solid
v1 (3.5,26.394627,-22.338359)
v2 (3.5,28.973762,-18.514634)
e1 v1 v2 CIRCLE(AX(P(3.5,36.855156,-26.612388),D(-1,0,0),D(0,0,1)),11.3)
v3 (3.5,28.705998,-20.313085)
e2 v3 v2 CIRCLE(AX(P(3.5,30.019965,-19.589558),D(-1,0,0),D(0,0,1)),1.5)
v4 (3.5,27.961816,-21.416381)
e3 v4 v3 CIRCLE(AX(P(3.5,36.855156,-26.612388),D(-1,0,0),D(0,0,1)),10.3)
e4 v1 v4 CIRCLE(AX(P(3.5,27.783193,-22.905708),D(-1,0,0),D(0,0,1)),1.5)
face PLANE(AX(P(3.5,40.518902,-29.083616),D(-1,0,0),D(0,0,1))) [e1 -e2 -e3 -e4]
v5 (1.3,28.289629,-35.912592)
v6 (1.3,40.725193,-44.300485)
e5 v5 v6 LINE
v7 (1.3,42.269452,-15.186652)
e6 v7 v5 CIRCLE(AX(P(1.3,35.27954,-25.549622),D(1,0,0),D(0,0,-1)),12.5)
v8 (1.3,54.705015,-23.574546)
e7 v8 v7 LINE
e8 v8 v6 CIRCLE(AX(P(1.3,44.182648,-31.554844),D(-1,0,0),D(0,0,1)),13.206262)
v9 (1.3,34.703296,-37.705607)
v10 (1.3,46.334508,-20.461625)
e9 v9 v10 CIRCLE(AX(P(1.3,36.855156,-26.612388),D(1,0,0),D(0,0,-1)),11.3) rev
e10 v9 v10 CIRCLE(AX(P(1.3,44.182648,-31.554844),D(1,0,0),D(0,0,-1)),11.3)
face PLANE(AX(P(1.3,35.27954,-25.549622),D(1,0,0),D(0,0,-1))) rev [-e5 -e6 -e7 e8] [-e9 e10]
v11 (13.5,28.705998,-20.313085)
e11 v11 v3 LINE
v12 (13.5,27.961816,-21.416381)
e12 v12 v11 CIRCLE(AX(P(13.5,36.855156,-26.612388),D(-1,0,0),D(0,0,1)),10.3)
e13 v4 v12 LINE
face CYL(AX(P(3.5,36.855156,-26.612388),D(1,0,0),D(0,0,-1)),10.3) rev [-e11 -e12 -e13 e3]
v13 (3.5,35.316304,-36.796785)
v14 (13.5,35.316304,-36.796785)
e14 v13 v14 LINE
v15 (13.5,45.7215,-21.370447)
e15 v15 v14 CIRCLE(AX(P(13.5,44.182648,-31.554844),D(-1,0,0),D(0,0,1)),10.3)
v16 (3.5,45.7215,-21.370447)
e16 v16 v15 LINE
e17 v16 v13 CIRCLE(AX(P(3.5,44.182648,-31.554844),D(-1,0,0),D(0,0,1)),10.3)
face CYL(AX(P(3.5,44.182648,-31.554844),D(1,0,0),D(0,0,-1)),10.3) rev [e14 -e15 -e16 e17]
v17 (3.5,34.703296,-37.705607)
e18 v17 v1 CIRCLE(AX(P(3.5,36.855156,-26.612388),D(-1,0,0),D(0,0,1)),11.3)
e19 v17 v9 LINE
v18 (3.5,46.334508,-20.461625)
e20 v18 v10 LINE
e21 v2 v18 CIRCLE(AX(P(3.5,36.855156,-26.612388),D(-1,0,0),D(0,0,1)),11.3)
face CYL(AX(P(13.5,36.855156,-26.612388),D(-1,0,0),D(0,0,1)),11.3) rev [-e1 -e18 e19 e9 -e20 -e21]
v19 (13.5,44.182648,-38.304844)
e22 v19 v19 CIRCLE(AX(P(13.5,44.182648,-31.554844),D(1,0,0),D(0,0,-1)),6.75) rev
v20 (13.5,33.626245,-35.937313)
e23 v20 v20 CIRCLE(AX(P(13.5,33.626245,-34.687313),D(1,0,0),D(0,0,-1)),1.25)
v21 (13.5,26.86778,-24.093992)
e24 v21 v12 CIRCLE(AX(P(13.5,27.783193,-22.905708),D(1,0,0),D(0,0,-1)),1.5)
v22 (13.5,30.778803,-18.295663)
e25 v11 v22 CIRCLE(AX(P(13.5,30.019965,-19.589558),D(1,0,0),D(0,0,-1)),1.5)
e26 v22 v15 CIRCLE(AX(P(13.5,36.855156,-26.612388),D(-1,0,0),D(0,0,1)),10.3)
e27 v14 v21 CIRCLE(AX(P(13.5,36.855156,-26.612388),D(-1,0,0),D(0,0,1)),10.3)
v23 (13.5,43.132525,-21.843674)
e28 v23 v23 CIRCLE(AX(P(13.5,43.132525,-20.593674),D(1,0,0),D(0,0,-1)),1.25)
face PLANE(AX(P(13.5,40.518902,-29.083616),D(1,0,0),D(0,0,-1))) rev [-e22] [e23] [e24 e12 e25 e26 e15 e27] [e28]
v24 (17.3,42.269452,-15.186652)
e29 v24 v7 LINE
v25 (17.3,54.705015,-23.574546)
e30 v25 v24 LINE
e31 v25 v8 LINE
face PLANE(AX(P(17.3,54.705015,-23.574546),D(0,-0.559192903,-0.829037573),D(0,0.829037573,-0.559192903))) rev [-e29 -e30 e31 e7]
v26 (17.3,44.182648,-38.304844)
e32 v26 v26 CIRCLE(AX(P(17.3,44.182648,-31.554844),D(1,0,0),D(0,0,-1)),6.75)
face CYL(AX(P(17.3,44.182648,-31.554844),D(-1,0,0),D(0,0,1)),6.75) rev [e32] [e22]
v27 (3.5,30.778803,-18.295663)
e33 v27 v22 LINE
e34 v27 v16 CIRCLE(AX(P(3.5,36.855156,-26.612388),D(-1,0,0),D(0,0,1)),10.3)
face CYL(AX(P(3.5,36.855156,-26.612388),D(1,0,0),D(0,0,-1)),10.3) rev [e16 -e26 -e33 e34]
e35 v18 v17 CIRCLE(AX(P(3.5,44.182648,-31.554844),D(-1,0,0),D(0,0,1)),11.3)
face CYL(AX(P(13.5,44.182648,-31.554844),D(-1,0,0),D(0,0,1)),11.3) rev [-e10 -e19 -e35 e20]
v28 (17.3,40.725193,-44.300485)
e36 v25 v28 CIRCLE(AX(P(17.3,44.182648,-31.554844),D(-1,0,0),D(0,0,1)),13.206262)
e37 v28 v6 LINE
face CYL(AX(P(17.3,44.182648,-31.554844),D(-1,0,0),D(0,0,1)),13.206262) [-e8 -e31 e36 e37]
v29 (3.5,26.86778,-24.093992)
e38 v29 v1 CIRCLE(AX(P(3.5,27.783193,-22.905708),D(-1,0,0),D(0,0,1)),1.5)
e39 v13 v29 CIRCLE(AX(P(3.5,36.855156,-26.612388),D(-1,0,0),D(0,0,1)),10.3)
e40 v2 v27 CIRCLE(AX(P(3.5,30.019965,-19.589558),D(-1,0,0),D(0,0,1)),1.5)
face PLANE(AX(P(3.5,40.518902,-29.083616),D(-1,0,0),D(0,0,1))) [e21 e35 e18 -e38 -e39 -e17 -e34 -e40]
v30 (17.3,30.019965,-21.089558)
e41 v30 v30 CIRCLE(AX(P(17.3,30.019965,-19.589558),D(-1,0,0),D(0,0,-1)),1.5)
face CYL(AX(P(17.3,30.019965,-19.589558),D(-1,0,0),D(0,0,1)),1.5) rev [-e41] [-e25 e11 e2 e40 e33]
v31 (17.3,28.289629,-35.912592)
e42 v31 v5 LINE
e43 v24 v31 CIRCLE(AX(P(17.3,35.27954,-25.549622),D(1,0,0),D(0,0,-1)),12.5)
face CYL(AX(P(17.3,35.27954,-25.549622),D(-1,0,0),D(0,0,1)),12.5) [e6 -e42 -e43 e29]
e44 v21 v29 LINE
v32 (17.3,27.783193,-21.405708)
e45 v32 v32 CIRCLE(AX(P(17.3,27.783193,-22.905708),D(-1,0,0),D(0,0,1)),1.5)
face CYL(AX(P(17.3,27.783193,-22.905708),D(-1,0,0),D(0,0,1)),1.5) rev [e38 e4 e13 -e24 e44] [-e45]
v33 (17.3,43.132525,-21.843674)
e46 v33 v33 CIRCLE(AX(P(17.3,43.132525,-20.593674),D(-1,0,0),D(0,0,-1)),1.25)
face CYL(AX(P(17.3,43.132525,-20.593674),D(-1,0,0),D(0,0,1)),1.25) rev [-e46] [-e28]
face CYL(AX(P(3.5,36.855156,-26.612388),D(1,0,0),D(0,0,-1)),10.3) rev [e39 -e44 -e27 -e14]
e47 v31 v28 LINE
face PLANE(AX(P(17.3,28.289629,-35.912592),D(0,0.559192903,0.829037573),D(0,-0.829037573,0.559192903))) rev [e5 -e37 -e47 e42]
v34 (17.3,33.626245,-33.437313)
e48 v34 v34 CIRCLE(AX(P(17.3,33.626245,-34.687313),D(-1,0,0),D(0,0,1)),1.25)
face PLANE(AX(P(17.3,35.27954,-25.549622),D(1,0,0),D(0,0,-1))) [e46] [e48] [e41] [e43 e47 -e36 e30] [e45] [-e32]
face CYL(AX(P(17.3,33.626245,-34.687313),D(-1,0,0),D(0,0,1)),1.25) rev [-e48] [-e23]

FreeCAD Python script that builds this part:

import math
import FreeCAD as App
import Part
import Sketcher

V = App.Vector
Q = App.Units.Quantity

doc = App.newDocument("Part")
body = doc.addObject("PartDesign::Body", "Body")

# Sketch on YZ plane
sketch1 = body.newObject("Sketcher::SketchObject", "Sketch")
sketch1.AttachmentSupport = (doc.getObject("YZ_Plane"), [""])
sketch1.MapMode = "FlatFace"
sketch1.AttachmentOffset = App.Placement(V(0, 0, 1.3), App.Rotation())
sketch1.addGeometry(Part.LineSegment(V(55, -24, 0), V(42, -15, 0)), False)
sketch1.addGeometry(Part.ArcOfCircle(Part.Circle(V(35, -26, 0), V(0, 0, 1), 12), math.radians(56), math.radians(236)), False)
sketch1.addGeometry(Part.LineSegment(V(28, -36, 0), V(41, -44, 0)), False)
sketch1.addGeometry(Part.ArcOfCircle(Part.Circle(V(44, -32, 0), V(0, 0, 1), 13), math.radians(-105), math.radians(37)), False)
sketch1.addConstraint(Sketcher.Constraint("Tangent", 0, 2, 1, 1))
sketch1.addConstraint(Sketcher.Constraint("Tangent", 1, 2, 2, 1))
sketch1.addConstraint(Sketcher.Constraint("Coincident", 2, 2, 3, 1))
sketch1.addConstraint(Sketcher.Constraint("Coincident", 3, 2, 0, 1))
sketch1.addConstraint(Sketcher.Constraint("Parallel", 0, 2))
sketch1.addConstraint(Sketcher.Constraint("Equal", 0, 2))
sketch1.addConstraint(Sketcher.Constraint("Radius", 1, 12.5))
sketch1.addConstraint(Sketcher.Constraint("Angle", 0, Q("146 deg")))
sketch1.addConstraint(Sketcher.Constraint("Distance", 0, 15.0))
sketch1.addConstraint(Sketcher.Constraint("Radius", 3, 13.206262))
sketch1.addConstraint(Sketcher.Constraint("DistanceX", -1, 1, 1, 3, 35.27954))
sketch1.addConstraint(Sketcher.Constraint("DistanceY", 1, 3, -1, 1, 25.549622))
pad1 = body.newObject("PartDesign::Pad", "Pad")
pad1.Profile = sketch1
pad1.Length = 16

# Sketch on YZ plane
sketch2 = body.newObject("Sketcher::SketchObject", "Sketch001")
sketch2.AttachmentSupport = (doc.getObject("YZ_Plane"), [""])
sketch2.MapMode = "FlatFace"
sketch2.addGeometry(Part.ArcOfCircle(Part.Circle(V(44, -32, 0), V(0, 0, 1), 11), math.radians(-147), math.radians(79)), False)
sketch2.addGeometry(Part.ArcOfCircle(Part.Circle(V(37, -27, 0), V(0, 0, 1), 11), math.radians(33), math.radians(259)), False)
sketch2.addConstraint(Sketcher.Constraint("Coincident", 0, 1, 1, 2))
sketch2.addConstraint(Sketcher.Constraint("Coincident", 1, 1, 0, 2))
sketch2.addConstraint(Sketcher.Constraint("Equal", 0, 1))
sketch2.addConstraint(Sketcher.Constraint("Radius", 0, 11.3))
sketch2.addConstraint(Sketcher.Constraint("DistanceX", -1, 1, 0, 3, 44.182648))
sketch2.addConstraint(Sketcher.Constraint("DistanceY", 1, 3, -1, 1, 26.612388))
sketch2.addConstraint(Sketcher.Constraint("DistanceX", -1, 1, 1, 1, 46.334508))
sketch2.addConstraint(Sketcher.Constraint("DistanceX", 1, 3, 0, 3, 7.327492))
pocket1 = body.newObject("PartDesign::Pocket", "Pocket")
pocket1.Profile = sketch2
pocket1.Length = 13.5
pocket1.Reversed = True

# Sketch on YZ plane
sketch3 = body.newObject("Sketcher::SketchObject", "Sketch002")
sketch3.AttachmentSupport = (doc.getObject("YZ_Plane"), [""])
sketch3.MapMode = "FlatFace"
sketch3.addGeometry(Part.Circle(V(44, -32, 0), V(0, 0, 1), 7), False)
sketch3.addConstraint(Sketcher.Constraint("Diameter", 0, 13.5))
sketch3.addConstraint(Sketcher.Constraint("DistanceX", -1, 1, 0, 3, 44.182648))
sketch3.addConstraint(Sketcher.Constraint("DistanceY", 0, 3, -1, 1, 31.554844))
pocket2 = body.newObject("PartDesign::Pocket", "Pocket001")
pocket2.Profile = sketch3
pocket2.Type = "ThroughAll"
pocket2.Reversed = True

# Sketch on YZ plane
sketch4 = body.newObject("Sketcher::SketchObject", "Sketch003")
sketch4.AttachmentSupport = (doc.getObject("YZ_Plane"), [""])
sketch4.MapMode = "FlatFace"
sketch4.AttachmentOffset = App.Placement(V(0, 0, 13.5), App.Rotation())
sketch4.addGeometry(Part.ArcOfCircle(Part.Circle(V(44, -32, 0), V(0, 0, 1), 11), math.radians(-147), math.radians(79)), False)
sketch4.addGeometry(Part.ArcOfCircle(Part.Circle(V(37, -27, 0), V(0, 0, 1), 11), math.radians(33), math.radians(259)), False)
sketch4.addGeometry(Part.ArcOfCircle(Part.Circle(V(37, -27, 0), V(0, 0, 1), 10), math.radians(31), math.radians(261)), False)
sketch4.addGeometry(Part.ArcOfCircle(Part.Circle(V(44, -32, 0), V(0, 0, 1), 10), math.radians(-149), math.radians(81)), False)
sketch4.addConstraint(Sketcher.Constraint("Coincident", 0, 1, 1, 2))
sketch4.addConstraint(Sketcher.Constraint("Coincident", 1, 1, 0, 2))
sketch4.addConstraint(Sketcher.Constraint("Coincident", 2, 1, 3, 2))
sketch4.addConstraint(Sketcher.Constraint("Coincident", 3, 1, 2, 2))
sketch4.addConstraint(Sketcher.Constraint("Coincident", 2, 3, 1, 3))
sketch4.addConstraint(Sketcher.Constraint("Coincident", 3, 3, 0, 3))
sketch4.addConstraint(Sketcher.Constraint("Equal", 0, 1))
sketch4.addConstraint(Sketcher.Constraint("Equal", 2, 3))
sketch4.addConstraint(Sketcher.Constraint("Radius", 0, 11.3))
sketch4.addConstraint(Sketcher.Constraint("Radius", 2, 10.3))
sketch4.addConstraint(Sketcher.Constraint("DistanceX", -1, 1, 2, 1, 45.7215))
sketch4.addConstraint(Sketcher.Constraint("DistanceX", -1, 1, 0, 3, 44.182648))
sketch4.addConstraint(Sketcher.Constraint("DistanceY", 1, 3, -1, 1, 26.612388))
sketch4.addConstraint(Sketcher.Constraint("DistanceX", -1, 1, 1, 1, 46.334508))
pad2 = body.newObject("PartDesign::Pad", "Pad001")
pad2.Profile = sketch4
pad2.Length = 10
pad2.Reversed = True

# Sketch on YZ plane
sketch5 = body.newObject("Sketcher::SketchObject", "Sketch004")
sketch5.AttachmentSupport = (doc.getObject("YZ_Plane"), [""])
sketch5.MapMode = "FlatFace"
sketch5.AttachmentOffset = App.Placement(V(0, 0, 13.5), App.Rotation())
sketch5.addGeometry(Part.Circle(V(33.6, -34.7, 0), V(0, 0, 1), 1.2), False)
sketch5.addGeometry(Part.Circle(V(43.1, -20.6, 0), V(0, 0, 1), 1.2), False)
sketch5.addGeometry(Part.Circle(V(27.8, -22.9, 0), V(0, 0, 1), 1.5), False)
sketch5.addGeometry(Part.Circle(V(30, -19.6, 0), V(0, 0, 1), 1.5), False)
sketch5.addConstraint(Sketcher.Constraint("Equal", 0, 1))
sketch5.addConstraint(Sketcher.Constraint("Equal", 2, 3))
sketch5.addConstraint(Sketcher.Constraint("Diameter", 2, 3.0))
sketch5.addConstraint(Sketcher.Constraint("Diameter", 0, 2.5))
sketch5.addConstraint(Sketcher.Constraint("DistanceX", 0, 3, 1, 3, 9.506279))
sketch5.addConstraint(Sketcher.Constraint("DistanceY", 0, 3, 1, 3, 14.093639))
sketch5.addConstraint(Sketcher.Constraint("DistanceX", 2, 3, 1, 3, 15.349332))
sketch5.addConstraint(Sketcher.Constraint("DistanceX", 2, 3, 3, 3, 2.236772))
sketch5.addConstraint(Sketcher.Constraint("DistanceY", 2, 3, 3, 3, 3.31615))
sketch5.addConstraint(Sketcher.Constraint("DistanceX", -1, 1, 0, 3, 33.626245))
sketch5.addConstraint(Sketcher.Constraint("DistanceY", 0, 3, -1, 1, 34.687313))
sketch5.addConstraint(Sketcher.Constraint("DistanceY", 2, 3, -1, 1, 22.905708))
pocket3 = body.newObject("PartDesign::Pocket", "Pocket002")
pocket3.Profile = sketch5
pocket3.Type = "ThroughAll"
pocket3.Midplane = True

doc.recompute()
